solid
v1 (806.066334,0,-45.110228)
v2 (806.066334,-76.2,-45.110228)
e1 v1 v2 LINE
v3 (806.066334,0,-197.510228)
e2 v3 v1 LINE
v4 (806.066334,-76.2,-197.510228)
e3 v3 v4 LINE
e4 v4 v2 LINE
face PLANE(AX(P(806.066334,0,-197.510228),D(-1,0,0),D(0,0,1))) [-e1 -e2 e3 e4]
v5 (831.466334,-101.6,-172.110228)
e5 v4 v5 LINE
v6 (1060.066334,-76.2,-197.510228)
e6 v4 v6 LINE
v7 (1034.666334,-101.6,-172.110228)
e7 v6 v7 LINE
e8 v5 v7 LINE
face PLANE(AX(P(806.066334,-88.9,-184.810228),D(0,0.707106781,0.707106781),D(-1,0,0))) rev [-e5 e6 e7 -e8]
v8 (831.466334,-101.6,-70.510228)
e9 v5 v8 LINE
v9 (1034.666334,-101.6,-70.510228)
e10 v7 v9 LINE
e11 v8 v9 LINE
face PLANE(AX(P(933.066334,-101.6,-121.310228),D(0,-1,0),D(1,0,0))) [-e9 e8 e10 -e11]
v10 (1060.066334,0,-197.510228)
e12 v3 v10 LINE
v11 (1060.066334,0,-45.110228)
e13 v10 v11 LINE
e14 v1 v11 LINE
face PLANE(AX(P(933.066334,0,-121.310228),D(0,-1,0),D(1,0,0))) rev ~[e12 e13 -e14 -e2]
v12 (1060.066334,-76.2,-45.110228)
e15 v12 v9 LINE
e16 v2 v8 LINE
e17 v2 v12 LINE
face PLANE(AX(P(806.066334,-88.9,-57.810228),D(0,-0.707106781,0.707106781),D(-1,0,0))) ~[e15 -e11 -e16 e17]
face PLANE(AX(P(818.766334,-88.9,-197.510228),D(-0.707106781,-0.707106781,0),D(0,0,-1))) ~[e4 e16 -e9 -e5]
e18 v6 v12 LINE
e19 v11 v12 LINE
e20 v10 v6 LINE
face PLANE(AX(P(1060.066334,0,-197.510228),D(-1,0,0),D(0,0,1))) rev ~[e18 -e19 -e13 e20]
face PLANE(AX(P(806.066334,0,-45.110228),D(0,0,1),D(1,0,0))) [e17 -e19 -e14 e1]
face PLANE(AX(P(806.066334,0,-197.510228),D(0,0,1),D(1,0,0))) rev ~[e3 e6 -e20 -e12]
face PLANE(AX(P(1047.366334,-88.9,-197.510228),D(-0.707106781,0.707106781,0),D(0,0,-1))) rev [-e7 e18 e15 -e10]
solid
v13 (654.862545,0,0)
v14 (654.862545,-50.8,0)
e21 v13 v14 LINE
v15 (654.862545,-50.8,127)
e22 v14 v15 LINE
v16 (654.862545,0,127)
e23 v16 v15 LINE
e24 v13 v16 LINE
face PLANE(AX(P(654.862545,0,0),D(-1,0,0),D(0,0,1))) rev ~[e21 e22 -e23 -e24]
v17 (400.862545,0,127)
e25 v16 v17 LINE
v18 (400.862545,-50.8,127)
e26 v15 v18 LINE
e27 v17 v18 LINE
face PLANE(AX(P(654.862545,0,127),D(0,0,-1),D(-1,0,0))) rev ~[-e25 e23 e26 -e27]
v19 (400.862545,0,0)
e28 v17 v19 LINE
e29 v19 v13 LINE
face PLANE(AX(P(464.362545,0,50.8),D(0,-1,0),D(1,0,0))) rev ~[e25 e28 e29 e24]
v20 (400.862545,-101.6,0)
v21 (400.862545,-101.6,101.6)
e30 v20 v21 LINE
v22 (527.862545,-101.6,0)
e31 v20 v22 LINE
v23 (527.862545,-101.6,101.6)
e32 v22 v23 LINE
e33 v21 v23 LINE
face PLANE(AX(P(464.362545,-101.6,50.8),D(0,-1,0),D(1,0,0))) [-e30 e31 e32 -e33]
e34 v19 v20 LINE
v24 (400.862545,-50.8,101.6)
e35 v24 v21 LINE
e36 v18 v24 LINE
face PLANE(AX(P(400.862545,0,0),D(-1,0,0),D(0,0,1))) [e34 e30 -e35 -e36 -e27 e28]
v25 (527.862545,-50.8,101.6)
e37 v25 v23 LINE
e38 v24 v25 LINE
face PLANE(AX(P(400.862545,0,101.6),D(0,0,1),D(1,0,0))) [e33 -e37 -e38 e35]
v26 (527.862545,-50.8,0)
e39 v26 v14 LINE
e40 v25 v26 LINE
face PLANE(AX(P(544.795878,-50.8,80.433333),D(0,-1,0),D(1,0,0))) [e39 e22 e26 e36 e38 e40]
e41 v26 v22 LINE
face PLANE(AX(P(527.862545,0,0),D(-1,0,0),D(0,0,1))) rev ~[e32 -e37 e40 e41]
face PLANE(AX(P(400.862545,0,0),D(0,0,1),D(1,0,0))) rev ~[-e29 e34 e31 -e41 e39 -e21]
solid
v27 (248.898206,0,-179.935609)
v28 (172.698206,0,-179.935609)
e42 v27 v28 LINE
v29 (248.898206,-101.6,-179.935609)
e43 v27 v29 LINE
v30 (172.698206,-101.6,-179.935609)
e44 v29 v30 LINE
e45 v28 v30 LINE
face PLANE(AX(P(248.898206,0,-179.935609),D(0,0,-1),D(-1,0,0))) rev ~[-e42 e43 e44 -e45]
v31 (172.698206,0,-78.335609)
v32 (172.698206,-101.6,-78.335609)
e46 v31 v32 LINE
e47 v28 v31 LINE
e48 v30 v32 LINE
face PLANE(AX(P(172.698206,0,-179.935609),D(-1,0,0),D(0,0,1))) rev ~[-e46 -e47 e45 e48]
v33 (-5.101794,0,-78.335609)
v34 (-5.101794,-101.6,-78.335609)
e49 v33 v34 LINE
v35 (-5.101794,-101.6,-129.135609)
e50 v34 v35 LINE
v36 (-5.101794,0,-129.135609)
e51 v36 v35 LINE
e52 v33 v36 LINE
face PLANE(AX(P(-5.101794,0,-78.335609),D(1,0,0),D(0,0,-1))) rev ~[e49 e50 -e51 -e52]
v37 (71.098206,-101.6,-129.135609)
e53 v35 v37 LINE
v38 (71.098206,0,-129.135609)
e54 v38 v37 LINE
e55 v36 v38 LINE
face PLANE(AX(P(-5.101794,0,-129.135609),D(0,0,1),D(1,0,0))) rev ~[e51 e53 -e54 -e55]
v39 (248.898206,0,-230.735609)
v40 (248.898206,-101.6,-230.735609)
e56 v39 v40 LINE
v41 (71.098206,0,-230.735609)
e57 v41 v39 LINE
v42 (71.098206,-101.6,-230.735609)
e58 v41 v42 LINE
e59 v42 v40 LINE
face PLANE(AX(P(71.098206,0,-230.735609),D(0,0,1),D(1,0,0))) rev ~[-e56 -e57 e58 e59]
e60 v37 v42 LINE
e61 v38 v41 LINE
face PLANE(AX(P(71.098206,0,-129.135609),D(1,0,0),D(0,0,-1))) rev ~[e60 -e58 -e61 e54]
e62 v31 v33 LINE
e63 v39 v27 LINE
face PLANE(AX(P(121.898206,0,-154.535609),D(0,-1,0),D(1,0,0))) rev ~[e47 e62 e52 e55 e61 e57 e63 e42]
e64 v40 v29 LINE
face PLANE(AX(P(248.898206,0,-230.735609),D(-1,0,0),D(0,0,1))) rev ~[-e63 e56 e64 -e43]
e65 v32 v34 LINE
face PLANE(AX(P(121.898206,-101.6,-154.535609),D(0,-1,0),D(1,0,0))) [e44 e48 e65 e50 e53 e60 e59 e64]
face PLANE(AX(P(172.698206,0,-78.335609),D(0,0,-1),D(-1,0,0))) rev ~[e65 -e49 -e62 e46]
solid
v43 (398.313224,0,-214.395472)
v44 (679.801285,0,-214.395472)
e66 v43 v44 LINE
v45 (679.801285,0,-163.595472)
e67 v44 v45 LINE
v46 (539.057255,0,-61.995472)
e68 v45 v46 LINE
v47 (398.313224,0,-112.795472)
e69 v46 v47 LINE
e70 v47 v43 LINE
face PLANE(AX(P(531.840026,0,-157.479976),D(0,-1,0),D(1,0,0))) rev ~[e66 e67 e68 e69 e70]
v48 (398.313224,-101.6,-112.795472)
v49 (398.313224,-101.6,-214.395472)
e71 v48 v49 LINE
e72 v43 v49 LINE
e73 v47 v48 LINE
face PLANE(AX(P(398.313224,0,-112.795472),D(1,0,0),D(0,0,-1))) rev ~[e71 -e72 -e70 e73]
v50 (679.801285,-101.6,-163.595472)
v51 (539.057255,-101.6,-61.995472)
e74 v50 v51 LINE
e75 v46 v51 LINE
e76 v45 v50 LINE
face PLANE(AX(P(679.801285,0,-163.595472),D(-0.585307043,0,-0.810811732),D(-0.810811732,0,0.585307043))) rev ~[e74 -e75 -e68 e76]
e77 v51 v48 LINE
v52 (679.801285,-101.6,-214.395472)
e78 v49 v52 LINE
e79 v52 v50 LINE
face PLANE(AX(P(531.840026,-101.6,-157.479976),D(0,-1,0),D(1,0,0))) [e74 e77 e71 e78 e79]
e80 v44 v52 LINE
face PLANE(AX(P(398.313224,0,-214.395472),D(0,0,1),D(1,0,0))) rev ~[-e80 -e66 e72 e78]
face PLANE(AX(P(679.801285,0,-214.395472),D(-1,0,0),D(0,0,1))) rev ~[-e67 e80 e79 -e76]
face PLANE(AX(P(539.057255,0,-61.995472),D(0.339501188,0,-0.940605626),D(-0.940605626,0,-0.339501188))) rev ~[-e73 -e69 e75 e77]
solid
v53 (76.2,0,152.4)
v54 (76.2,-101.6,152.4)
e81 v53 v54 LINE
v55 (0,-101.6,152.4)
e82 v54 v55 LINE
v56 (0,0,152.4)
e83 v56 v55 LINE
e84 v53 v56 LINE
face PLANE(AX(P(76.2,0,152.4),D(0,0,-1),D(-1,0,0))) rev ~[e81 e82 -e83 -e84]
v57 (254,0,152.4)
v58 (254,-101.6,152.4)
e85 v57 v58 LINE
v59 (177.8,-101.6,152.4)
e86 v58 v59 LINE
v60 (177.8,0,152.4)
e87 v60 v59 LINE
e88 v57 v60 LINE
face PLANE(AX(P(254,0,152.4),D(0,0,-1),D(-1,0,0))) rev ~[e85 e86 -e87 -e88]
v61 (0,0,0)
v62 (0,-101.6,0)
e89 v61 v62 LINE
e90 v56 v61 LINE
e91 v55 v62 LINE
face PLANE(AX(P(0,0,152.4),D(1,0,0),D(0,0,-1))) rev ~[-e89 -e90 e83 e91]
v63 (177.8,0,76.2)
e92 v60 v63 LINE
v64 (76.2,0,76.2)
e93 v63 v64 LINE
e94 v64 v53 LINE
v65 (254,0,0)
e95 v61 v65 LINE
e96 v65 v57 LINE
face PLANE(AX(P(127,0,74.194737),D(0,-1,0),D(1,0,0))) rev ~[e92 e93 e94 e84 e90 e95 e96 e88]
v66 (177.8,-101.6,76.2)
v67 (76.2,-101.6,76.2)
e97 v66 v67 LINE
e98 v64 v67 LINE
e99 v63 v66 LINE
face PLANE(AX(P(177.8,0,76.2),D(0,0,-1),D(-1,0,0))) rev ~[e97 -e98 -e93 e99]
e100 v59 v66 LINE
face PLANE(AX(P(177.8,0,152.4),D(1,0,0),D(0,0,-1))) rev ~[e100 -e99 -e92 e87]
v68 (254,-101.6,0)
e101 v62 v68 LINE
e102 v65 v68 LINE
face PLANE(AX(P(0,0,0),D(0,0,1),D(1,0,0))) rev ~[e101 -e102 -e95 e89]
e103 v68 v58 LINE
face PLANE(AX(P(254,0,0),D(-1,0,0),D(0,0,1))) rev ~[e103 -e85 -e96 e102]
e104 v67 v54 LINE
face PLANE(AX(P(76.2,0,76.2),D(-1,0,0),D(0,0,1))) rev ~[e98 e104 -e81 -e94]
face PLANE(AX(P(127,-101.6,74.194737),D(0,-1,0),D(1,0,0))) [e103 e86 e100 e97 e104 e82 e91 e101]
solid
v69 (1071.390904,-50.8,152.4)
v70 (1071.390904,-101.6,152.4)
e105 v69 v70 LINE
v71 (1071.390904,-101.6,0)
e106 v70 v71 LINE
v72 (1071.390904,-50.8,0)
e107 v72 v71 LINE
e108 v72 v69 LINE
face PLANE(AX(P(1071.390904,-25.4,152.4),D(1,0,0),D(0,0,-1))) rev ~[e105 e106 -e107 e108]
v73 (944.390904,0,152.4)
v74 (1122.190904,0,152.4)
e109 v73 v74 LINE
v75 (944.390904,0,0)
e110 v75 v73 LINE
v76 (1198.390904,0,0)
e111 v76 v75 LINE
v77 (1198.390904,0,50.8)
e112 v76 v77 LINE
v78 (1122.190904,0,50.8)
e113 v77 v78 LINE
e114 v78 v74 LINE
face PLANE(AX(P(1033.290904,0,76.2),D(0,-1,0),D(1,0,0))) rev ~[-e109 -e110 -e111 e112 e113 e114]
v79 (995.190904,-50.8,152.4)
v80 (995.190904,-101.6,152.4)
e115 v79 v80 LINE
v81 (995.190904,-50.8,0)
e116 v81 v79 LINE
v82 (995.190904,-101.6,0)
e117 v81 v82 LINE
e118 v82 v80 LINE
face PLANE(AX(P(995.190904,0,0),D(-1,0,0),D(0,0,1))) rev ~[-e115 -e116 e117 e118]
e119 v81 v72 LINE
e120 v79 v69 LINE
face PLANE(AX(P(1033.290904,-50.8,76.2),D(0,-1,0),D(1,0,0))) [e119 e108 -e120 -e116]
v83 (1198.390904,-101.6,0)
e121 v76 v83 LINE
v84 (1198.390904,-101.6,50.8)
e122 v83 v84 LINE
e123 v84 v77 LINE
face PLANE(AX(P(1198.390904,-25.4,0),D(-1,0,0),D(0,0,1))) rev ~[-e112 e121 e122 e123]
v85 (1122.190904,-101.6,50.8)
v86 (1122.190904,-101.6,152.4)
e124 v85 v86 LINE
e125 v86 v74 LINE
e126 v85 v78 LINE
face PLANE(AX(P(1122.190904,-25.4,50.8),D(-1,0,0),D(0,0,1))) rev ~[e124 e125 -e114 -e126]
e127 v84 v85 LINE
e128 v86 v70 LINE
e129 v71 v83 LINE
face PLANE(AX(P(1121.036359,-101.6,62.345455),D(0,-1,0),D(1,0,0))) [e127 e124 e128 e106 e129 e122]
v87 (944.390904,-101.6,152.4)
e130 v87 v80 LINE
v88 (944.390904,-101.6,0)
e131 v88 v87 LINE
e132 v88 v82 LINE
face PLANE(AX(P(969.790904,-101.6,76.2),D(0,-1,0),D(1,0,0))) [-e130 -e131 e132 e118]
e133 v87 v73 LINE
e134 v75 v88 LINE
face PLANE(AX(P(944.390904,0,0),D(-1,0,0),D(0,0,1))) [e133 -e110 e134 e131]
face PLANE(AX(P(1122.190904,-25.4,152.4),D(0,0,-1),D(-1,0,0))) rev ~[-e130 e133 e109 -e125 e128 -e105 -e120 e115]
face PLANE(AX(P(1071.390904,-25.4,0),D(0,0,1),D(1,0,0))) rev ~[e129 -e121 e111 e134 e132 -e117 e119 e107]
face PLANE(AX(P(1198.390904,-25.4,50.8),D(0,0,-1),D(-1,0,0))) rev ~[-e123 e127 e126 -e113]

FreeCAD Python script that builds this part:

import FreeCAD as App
import Part
import Sketcher
from FreeCAD import Vector
Q = App.Units.Quantity


def edges_at(feature, points):
    """Names of the edges that pass closest to the given points."""
    edges = feature.Shape.Edges
    near = lambda p: min(range(len(edges)), key=lambda i: edges[i].distToShape(Part.Vertex(*p))[0])
    return sorted({f"Edge{near(p) + 1}" for p in points})


def add_polygon(sketch, points):
    """Adds a closed chain of lines whose ends are joined by coincident constraints."""
    first, n = sketch.GeometryCount, len(points)
    for a, b in zip(points, points[1:] + points[:1]):
        sketch.addGeometry(Part.LineSegment(App.Vector(*a, 0), App.Vector(*b, 0)), False)
    for i in range(n):
        sketch.addConstraint(Sketcher.Constraint("Coincident", first + i, 2, first + (i + 1) % n, 1))

doc = App.newDocument("Part")
body = doc.addObject("PartDesign::Body", "Body")

sketch1 = body.newObject("Sketcher::SketchObject", "Sketch")
sketch1.AttachmentSupport = (doc.getObject("XZ_Plane"), [""])
sketch1.MapMode = "FlatFace"
add_polygon(sketch1, [(0, 152.4), (0, 0), (254, 0), (254, 152.4), (177.8, 152.4), (177.8, 76.2), (76.2, 76.2), (76.2, 152.4)])
sketch1.addConstraint(Sketcher.Constraint("Vertical", 0))
sketch1.addConstraint(Sketcher.Constraint("Horizontal", 1))
sketch1.addConstraint(Sketcher.Constraint("Vertical", 2))
sketch1.addConstraint(Sketcher.Constraint("Horizontal", 3))
sketch1.addConstraint(Sketcher.Constraint("Vertical", 4))
sketch1.addConstraint(Sketcher.Constraint("Horizontal", 5))
sketch1.addConstraint(Sketcher.Constraint("Vertical", 6))
sketch1.addConstraint(Sketcher.Constraint("Horizontal", 7))
sketch1.addConstraint(Sketcher.Constraint("Coincident", 0, 2, -1, 1))
sketch1.addConstraint(Sketcher.Constraint("Horizontal", 3, 2, 6, 2))
sketch1.addConstraint(Sketcher.Constraint("Equal", 3, 7))
sketch1.addConstraint(Sketcher.Constraint("Equal", 7, 4))
sketch1.addConstraint(Sketcher.Constraint("DistanceX", 1, 1, 1, 2, Q("10 in")))
sketch1.addConstraint(Sketcher.Constraint("DistanceX", 3, 2, 3, 1, Q("3 in")))
sketch1.addConstraint(Sketcher.Constraint("DistanceY", 0, 2, 0, 1, Q("6 in")))
pad1 = body.newObject("PartDesign::Pad", "Pad")
pad1.Profile = sketch1
pad1.Length = Q("4 in")
body2 = doc.addObject("PartDesign::Body", "Body001")

sketch2 = body2.newObject("Sketcher::SketchObject", "Sketch001")
sketch2.AttachmentSupport = (doc.getObject("XZ_Plane001"), [""])
sketch2.MapMode = "FlatFace"
add_polygon(sketch2, [(654.862545, 127), (400.862545, 127), (400.862545, 101.6), (527.862545, 101.6), (527.862545, 0), (654.862545, 0)])
sketch2.addConstraint(Sketcher.Constraint("Horizontal", 0))
sketch2.addConstraint(Sketcher.Constraint("Vertical", 1))
sketch2.addConstraint(Sketcher.Constraint("Horizontal", 2))
sketch2.addConstraint(Sketcher.Constraint("Vertical", 3))
sketch2.addConstraint(Sketcher.Constraint("Horizontal", 4))
sketch2.addConstraint(Sketcher.Constraint("Vertical", 5))
sketch2.addConstraint(Sketcher.Constraint("PointOnObject", 3, 2, -1))
sketch2.addConstraint(Sketcher.Constraint("Equal", 2, 4))
sketch2.addConstraint(Sketcher.Constraint("Equal", 4, 5))
sketch2.addConstraint(Sketcher.Constraint("DistanceX", 0, 2, 0, 1, Q("10 in")))
sketch2.addConstraint(Sketcher.Constraint("DistanceY", 1, 2, 1, 1, Q("1 in")))
sketch2.addConstraint(Sketcher.Constraint("DistanceX", -1, 1, 0, 2, Q("400.862545 mm")))
pad2 = body2.newObject("PartDesign::Pad", "Pad001")
pad2.Profile = sketch2
pad2.Length = Q("2 in")

sketch3 = body2.newObject("Sketcher::SketchObject", "Sketch002")
sketch3.AttachmentSupport = (doc.getObject("XZ_Plane001"), [""])
sketch3.MapMode = "FlatFace"
add_polygon(sketch3, [(400.862545, 101.6), (400.862545, 0), (527.862545, 0), (527.862545, 101.6)])
sketch3.addConstraint(Sketcher.Constraint("Vertical", 0))
sketch3.addConstraint(Sketcher.Constraint("Horizontal", 1))
sketch3.addConstraint(Sketcher.Constraint("Vertical", 2))
sketch3.addConstraint(Sketcher.Constraint("Horizontal", 3))
sketch3.addConstraint(Sketcher.Constraint("PointOnObject", 0, 2, -1))
sketch3.addConstraint(Sketcher.Constraint("DistanceX", 1, 1, 1, 2, Q("5 in")))
sketch3.addConstraint(Sketcher.Constraint("DistanceY", 0, 2, 0, 1, Q("4 in")))
sketch3.addConstraint(Sketcher.Constraint("DistanceX", -1, 1, 0, 2, Q("400.862545 mm")))
pad3 = body2.newObject("PartDesign::Pad", "Pad002")
pad3.Profile = sketch3
pad3.Length = Q("4 in")
body3 = doc.addObject("PartDesign::Body", "Body002")

sketch4 = body3.newObject("Sketcher::SketchObject", "Sketch003")
sketch4.AttachmentSupport = (doc.getObject("XZ_Plane002"), [""])
sketch4.MapMode = "FlatFace"
add_polygon(sketch4, [(944.390904, 152.4), (944.390904, 0), (995.190904, 0), (995.190904, 152.4)])
sketch4.addConstraint(Sketcher.Constraint("Vertical", 0))
sketch4.addConstraint(Sketcher.Constraint("Horizontal", 1))
sketch4.addConstraint(Sketcher.Constraint("Vertical", 2))
sketch4.addConstraint(Sketcher.Constraint("Horizontal", 3))
sketch4.addConstraint(Sketcher.Constraint("PointOnObject", 0, 2, -1))
sketch4.addConstraint(Sketcher.Constraint("DistanceX", 1, 1, 1, 2, Q("2 in")))
sketch4.addConstraint(Sketcher.Constraint("DistanceY", 0, 2, 0, 1, Q("6 in")))
sketch4.addConstraint(Sketcher.Constraint("DistanceX", -1, 1, 0, 2, Q("944.390904 mm")))
pad4 = body3.newObject("PartDesign::Pad", "Pad003")
pad4.Profile = sketch4
pad4.Length = Q("4 in")

sketch5 = body3.newObject("Sketcher::SketchObject", "Sketch004")
sketch5.AttachmentSupport = (doc.getObject("XZ_Plane002"), [""])
sketch5.MapMode = "FlatFace"
add_polygon(sketch5, [(944.390904, 152.4), (944.390904, 0), (1198.390904, 0), (1198.390904, 50.8), (1122.190904, 50.8), (1122.190904, 152.4)])
sketch5.addConstraint(Sketcher.Constraint("Vertical", 0))
sketch5.addConstraint(Sketcher.Constraint("Horizontal", 1))
sketch5.addConstraint(Sketcher.Constraint("Vertical", 2))
sketch5.addConstraint(Sketcher.Constraint("Horizontal", 3))
sketch5.addConstraint(Sketcher.Constraint("Vertical", 4))
sketch5.addConstraint(Sketcher.Constraint("Horizontal", 5))
sketch5.addConstraint(Sketcher.Constraint("PointOnObject", 0, 2, -1))
sketch5.addConstraint(Sketcher.Constraint("DistanceX", 1, 1, 1, 2, Q("10 in")))
sketch5.addConstraint(Sketcher.Constraint("DistanceX", 3, 2, 3, 1, Q("3 in")))
sketch5.addConstraint(Sketcher.Constraint("DistanceY", 0, 2, 0, 1, Q("6 in")))
sketch5.addConstraint(Sketcher.Constraint("DistanceY", 2, 1, 2, 2, Q("2 in")))
sketch5.addConstraint(Sketcher.Constraint("DistanceX", -1, 1, 0, 2, Q("944.390904 mm")))
pad5 = body3.newObject("PartDesign::Pad", "Pad004")
pad5.Profile = sketch5
pad5.Length = Q("1 in")

sketch6 = body3.newObject("Sketcher::SketchObject", "Sketch005")
sketch6.AttachmentSupport = (doc.getObject("XZ_Plane002"), [""])
sketch6.MapMode = "FlatFace"
add_polygon(sketch6, [(995.190904, 152.4), (995.190904, 0), (1071.390904, 0), (1071.390904, 152.4)])
sketch6.addConstraint(Sketcher.Constraint("Vertical", 0))
sketch6.addConstraint(Sketcher.Constraint("Horizontal", 1))
sketch6.addConstraint(Sketcher.Constraint("Vertical", 2))
sketch6.addConstraint(Sketcher.Constraint("Horizontal", 3))
sketch6.addConstraint(Sketcher.Constraint("PointOnObject", 0, 2, -1))
sketch6.addConstraint(Sketcher.Constraint("DistanceX", 1, 1, 1, 2, Q("3 in")))
sketch6.addConstraint(Sketcher.Constraint("DistanceY", 0, 2, 0, 1, Q("6 in")))
sketch6.addConstraint(Sketcher.Constraint("DistanceX", -1, 1, 0, 2, Q("995.190904 mm")))
pad6 = body3.newObject("PartDesign::Pad", "Pad005")
pad6.Profile = sketch6
pad6.Length = Q("2 in")

sketch7 = body3.newObject("Sketcher::SketchObject", "Sketch006")
sketch7.AttachmentSupport = (doc.getObject("XZ_Plane002"), [""])
sketch7.MapMode = "FlatFace"
sketch7.AttachmentOffset = App.Placement(Vector(0, 0, 1 * 25.4), App.Rotation())
add_polygon(sketch7, [(1122.190904, 152.4), (1071.390904, 152.4), (1071.390904, 0), (1198.390904, 0), (1198.390904, 50.8), (1122.190904, 50.8)])
sketch7.addConstraint(Sketcher.Constraint("Horizontal", 0))
sketch7.addConstraint(Sketcher.Constraint("Vertical", 1))
sketch7.addConstraint(Sketcher.Constraint("Horizontal", 2))
sketch7.addConstraint(Sketcher.Constraint("Vertical", 3))
sketch7.addConstraint(Sketcher.Constraint("Horizontal", 4))
sketch7.addConstraint(Sketcher.Constraint("Vertical", 5))
sketch7.addConstraint(Sketcher.Constraint("PointOnObject", 1, 2, -1))
sketch7.addConstraint(Sketcher.Constraint("Equal", 0, 3))
sketch7.addConstraint(Sketcher.Constraint("DistanceX", 0, 2, 0, 1, Q("2 in")))
sketch7.addConstraint(Sketcher.Constraint("DistanceX", 2, 1, 2, 2, Q("5 in")))
sketch7.addConstraint(Sketcher.Constraint("DistanceY", 1, 2, 1, 1, Q("6 in")))
sketch7.addConstraint(Sketcher.Constraint("DistanceX", -1, 1, 0, 2, Q("1071.390904 mm")))
pad7 = body3.newObject("PartDesign::Pad", "Pad006")
pad7.Profile = sketch7
pad7.Length = Q("3 in")
body4 = doc.addObject("PartDesign::Body", "Body003")

sketch8 = body4.newObject("Sketcher::SketchObject", "Sketch007")
sketch8.AttachmentSupport = (doc.getObject("XZ_Plane003"), [""])
sketch8.MapMode = "FlatFace"
add_polygon(sketch8, [(172.698206, -78.335609), (-5.101794, -78.335609), (-5.101794, -129.135609), (71.098206, -129.135609), (71.098206, -230.735609), (248.898206, -230.735609), (248.898206, -179.935609), (172.698206, -179.935609)])
sketch8.addConstraint(Sketcher.Constraint("Horizontal", 0))
sketch8.addConstraint(Sketcher.Constraint("Vertical", 1))
sketch8.addConstraint(Sketcher.Constraint("Horizontal", 2))
sketch8.addConstraint(Sketcher.Constraint("Vertical", 3))
sketch8.addConstraint(Sketcher.Constraint("Horizontal", 4))
sketch8.addConstraint(Sketcher.Constraint("Vertical", 5))
sketch8.addConstraint(Sketcher.Constraint("Horizontal", 6))
sketch8.addConstraint(Sketcher.Constraint("Vertical", 7))
sketch8.addConstraint(Sketcher.Constraint("Equal", 0, 4))
sketch8.addConstraint(Sketcher.Constraint("Equal", 1, 5))
sketch8.addConstraint(Sketcher.Constraint("DistanceX", 0, 2, 0, 1, Q("7 in")))
sketch8.addConstraint(Sketcher.Constraint("DistanceX", 2, 1, 2, 2, Q("3 in")))
sketch8.addConstraint(Sketcher.Constraint("DistanceY", 1, 2, 1, 1, Q("2 in")))
sketch8.addConstraint(Sketcher.Constraint("DistanceY", 3, 2, 3, 1, Q("4 in")))
sketch8.addConstraint(Sketcher.Constraint("DistanceY", 0, 2, -1, 1, Q("78.335609 mm")))
sketch8.addConstraint(Sketcher.Constraint("DistanceX", 0, 2, -1, 1, Q("5.101794 mm")))
pad8 = body4.newObject("PartDesign::Pad", "Pad007")
pad8.Profile = sketch8
pad8.Length = Q("4 in")
body5 = doc.addObject("PartDesign::Body", "Body004")

sketch9 = body5.newObject("Sketcher::SketchObject", "Sketch008")
sketch9.AttachmentSupport = (doc.getObject("XZ_Plane004"), [""])
sketch9.MapMode = "FlatFace"
add_polygon(sketch9, [(539.057255, -61.995472), (398.313224, -112.795472), (398.313224, -214.395472), (679.801285, -214.395472), (679.801285, -163.595472)])
sketch9.addConstraint(Sketcher.Constraint("Vertical", 1))
sketch9.addConstraint(Sketcher.Constraint("Horizontal", 2))
sketch9.addConstraint(Sketcher.Constraint("Vertical", 3))
sketch9.addConstraint(Sketcher.Constraint("DistanceY", 1, 2, 1, 1, Q("4 in")))
sketch9.addConstraint(Sketcher.Constraint("DistanceY", 3, 1, 3, 2, Q("2 in")))
sketch9.addConstraint(Sketcher.Constraint("DistanceY", 0, 2, 4, 2, Q("2 in")))
sketch9.addConstraint(Sketcher.Constraint("DistanceX", 2, 1, 2, 2, Q("281.488061 mm")))
sketch9.addConstraint(Sketcher.Constraint("DistanceY", 3, 2, -1, 1, Q("163.595472 mm")))
sketch9.addConstraint(Sketcher.Constraint("DistanceX", 0, 2, 4, 2, Q("140.744031 mm")))
sketch9.addConstraint(Sketcher.Constraint("DistanceX", -1, 1, 0, 2, Q("398.313224 mm")))
pad9 = body5.newObject("PartDesign::Pad", "Pad008")
pad9.Profile = sketch9
pad9.Length = Q("4 in")
body6 = doc.addObject("PartDesign::Body", "Body005")

sketch10 = body6.newObject("Sketcher::SketchObject", "Sketch009")
sketch10.AttachmentSupport = (doc.getObject("XZ_Plane005"), [""])
sketch10.MapMode = "FlatFace"
add_polygon(sketch10, [(806.066334, -45.110228), (806.066334, -197.510228), (1060.066334, -197.510228), (1060.066334, -45.110228)])
sketch10.addConstraint(Sketcher.Constraint("Vertical", 0))
sketch10.addConstraint(Sketcher.Constraint("Horizontal", 1))
sketch10.addConstraint(Sketcher.Constraint("Vertical", 2))
sketch10.addConstraint(Sketcher.Constraint("Horizontal", 3))
sketch10.addConstraint(Sketcher.Constraint("DistanceX", 1, 1, 1, 2, Q("10 in")))
sketch10.addConstraint(Sketcher.Constraint("DistanceY", 0, 2, 0, 1, Q("6 in")))
sketch10.addConstraint(Sketcher.Constraint("DistanceY", 0, 2, -1, 1, Q("197.510228 mm")))
sketch10.addConstraint(Sketcher.Constraint("DistanceX", -1, 1, 0, 2, Q("806.066334 mm")))
pad10 = body6.newObject("PartDesign::Pad", "Pad009")
pad10.Profile = sketch10
pad10.Length = Q("4 in")
doc.recompute()

chamfer = body6.newObject("PartDesign::Chamfer", "Chamfer")
chamfer.Base = (pad10, edges_at(pad10, [
    (933.066, -101.6, -45.11),
    (806.066, -101.6, -121.31),
    (933.066, -101.6, -197.51),
    (1060.066, -101.6, -121.31),
]))
chamfer.Size = Q("1 in")

doc.recompute()
